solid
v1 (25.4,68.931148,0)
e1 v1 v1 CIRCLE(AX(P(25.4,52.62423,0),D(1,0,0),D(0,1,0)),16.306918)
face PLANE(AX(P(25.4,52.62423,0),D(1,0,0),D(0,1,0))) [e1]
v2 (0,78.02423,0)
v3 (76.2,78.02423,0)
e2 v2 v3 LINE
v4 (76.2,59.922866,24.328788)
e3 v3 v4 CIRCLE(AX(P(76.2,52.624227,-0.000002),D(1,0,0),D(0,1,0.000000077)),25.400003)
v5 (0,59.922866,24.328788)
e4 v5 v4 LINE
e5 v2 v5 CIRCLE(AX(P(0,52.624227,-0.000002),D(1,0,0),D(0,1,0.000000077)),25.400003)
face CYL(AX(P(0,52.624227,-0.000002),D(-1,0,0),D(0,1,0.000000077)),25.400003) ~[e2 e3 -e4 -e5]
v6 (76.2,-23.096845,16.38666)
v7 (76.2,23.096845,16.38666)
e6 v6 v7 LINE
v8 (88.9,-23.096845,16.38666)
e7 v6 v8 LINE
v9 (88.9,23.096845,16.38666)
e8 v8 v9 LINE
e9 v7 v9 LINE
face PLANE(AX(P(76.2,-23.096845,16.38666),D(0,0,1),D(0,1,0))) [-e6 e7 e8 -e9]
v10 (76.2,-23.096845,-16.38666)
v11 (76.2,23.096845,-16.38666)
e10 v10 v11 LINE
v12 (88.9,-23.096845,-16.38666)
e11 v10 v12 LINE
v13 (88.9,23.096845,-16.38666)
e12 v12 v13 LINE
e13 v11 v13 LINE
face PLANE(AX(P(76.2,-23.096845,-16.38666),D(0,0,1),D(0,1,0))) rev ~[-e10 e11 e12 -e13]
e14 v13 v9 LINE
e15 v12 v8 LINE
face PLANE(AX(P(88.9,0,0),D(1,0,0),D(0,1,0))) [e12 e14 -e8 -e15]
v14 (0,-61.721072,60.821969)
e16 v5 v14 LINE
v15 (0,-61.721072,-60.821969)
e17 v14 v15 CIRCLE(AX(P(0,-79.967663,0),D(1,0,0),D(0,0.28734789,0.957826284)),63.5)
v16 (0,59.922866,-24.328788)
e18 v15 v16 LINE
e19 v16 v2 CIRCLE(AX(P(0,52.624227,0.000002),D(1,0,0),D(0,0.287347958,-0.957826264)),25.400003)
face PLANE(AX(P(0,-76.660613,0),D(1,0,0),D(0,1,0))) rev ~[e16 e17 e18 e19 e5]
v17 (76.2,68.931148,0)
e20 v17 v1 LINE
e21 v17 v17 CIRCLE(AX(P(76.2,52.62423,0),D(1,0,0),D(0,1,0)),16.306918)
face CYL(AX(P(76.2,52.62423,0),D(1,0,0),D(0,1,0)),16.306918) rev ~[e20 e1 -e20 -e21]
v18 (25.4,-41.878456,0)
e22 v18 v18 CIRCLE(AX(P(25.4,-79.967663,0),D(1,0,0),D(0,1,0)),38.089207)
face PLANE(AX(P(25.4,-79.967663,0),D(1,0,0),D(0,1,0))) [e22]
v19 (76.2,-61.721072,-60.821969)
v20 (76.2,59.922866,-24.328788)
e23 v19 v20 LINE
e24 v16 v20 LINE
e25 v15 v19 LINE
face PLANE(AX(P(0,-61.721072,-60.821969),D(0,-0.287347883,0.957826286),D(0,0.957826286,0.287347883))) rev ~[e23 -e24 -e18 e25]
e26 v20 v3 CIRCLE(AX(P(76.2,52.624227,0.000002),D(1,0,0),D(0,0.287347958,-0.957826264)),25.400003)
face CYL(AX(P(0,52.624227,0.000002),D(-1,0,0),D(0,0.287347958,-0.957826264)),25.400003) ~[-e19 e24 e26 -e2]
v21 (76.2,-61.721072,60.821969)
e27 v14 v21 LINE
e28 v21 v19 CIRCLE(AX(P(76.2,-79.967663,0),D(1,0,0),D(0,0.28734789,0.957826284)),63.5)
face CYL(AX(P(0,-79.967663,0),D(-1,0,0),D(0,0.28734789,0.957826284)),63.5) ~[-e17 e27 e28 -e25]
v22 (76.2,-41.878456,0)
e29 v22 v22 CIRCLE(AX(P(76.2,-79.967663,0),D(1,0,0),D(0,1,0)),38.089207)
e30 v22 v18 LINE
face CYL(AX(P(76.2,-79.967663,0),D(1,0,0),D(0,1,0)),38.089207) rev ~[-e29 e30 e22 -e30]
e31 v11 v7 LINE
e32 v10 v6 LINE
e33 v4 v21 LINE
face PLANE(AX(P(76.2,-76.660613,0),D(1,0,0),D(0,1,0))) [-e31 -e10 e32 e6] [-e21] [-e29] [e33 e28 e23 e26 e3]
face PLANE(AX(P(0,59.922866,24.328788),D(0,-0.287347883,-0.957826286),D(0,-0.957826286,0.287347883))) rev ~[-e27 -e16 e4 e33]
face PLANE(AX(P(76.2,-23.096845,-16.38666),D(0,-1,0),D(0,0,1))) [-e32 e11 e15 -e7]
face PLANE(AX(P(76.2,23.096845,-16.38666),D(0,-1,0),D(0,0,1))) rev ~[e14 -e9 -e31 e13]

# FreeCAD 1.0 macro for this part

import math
import FreeCAD as App
import Part
import Sketcher
Q = App.Units.Quantity

doc = App.newDocument("Part")
body = doc.addObject("PartDesign::Body", "Body")

sketch1 = body.newObject("Sketcher::SketchObject", "Sketch")
sketch1.AttachmentSupport = (doc.getObject("YZ_Plane"), [""])
sketch1.MapMode = "FlatFace"
sketch1.addGeometry(Part.ArcOfCircle(Part.Circle(App.Vector(-80, 0, 0), App.Vector(0, 0, 1), 63), math.radians(73), math.radians(287)), False)
sketch1.addGeometry(Part.LineSegment(App.Vector(-62, -61, 0), App.Vector(60, -24, 0)), False)
sketch1.addGeometry(Part.ArcOfCircle(Part.Circle(App.Vector(53, 0, 0), App.Vector(0, 0, 1), 25), math.radians(-73), math.radians(0)), False)
sketch1.addGeometry(Part.ArcOfCircle(Part.Circle(App.Vector(53, 0, 0), App.Vector(0, 0, 1), 25), math.radians(0), math.radians(73)), False)
sketch1.addGeometry(Part.LineSegment(App.Vector(60, 24, 0), App.Vector(-62, 61, 0)), False)
sketch1.addConstraint(Sketcher.Constraint("Tangent", 0, 2, 1, 1))
sketch1.addConstraint(Sketcher.Constraint("Tangent", 1, 2, 2, 1))
sketch1.addConstraint(Sketcher.Constraint("Tangent", 2, 2, 3, 1))
sketch1.addConstraint(Sketcher.Constraint("Tangent", 3, 2, 4, 1))
sketch1.addConstraint(Sketcher.Constraint("Tangent", 4, 2, 0, 1))
sketch1.addConstraint(Sketcher.Constraint("Equal", 2, 3))
sketch1.addConstraint(Sketcher.Constraint("Symmetric", 1, 2, 3, 2, -1))
sketch1.addConstraint(Sketcher.Constraint("PointOnObject", 2, 2, -1))
sketch1.addConstraint(Sketcher.Constraint("Radius", 2, Q("1.0000001 in")))
sketch1.addConstraint(Sketcher.Constraint("Radius", 0, Q("2.5 in")))
sketch1.addConstraint(Sketcher.Constraint("Distance", 1, Q("5 in")))
sketch1.addConstraint(Sketcher.Constraint("DistanceX", 0, 2, -1, 1, 61.721072))
pad1 = body.newObject("PartDesign::Pad", "Pad")
pad1.Profile = sketch1
pad1.Length = Q("3 in")

sketch2 = body.newObject("Sketcher::SketchObject", "Sketch001")
sketch2.AttachmentSupport = (doc.getObject("YZ_Plane"), [""])
sketch2.MapMode = "FlatFace"
sketch2.AttachmentOffset = App.Placement(App.Vector(0, 0, 3 * 25.4), App.Rotation())
sketch2.addGeometry(Part.Circle(App.Vector(-80, 0, 0), App.Vector(0, 0, 1), 38), False)
sketch2.addGeometry(Part.Circle(App.Vector(53, 0, 0), App.Vector(0, 0, 1), 16), False)
sketch2.addConstraint(Sketcher.Constraint("PointOnObject", 0, 3, -1))
sketch2.addConstraint(Sketcher.Constraint("PointOnObject", 1, 3, -1))
sketch2.addConstraint(Sketcher.Constraint("Diameter", 0, 76.178414))
sketch2.addConstraint(Sketcher.Constraint("Diameter", 1, 32.613836))
sketch2.addConstraint(Sketcher.Constraint("DistanceX", -1, 1, 1, 3, 52.62423))
sketch2.addConstraint(Sketcher.Constraint("DistanceX", 0, 3, -1, 1, 79.967663))
pocket1 = body.newObject("PartDesign::Pocket", "Pocket")
pocket1.Profile = sketch2
pocket1.Length = Q("2 in")

sketch3 = body.newObject("Sketcher::SketchObject", "Sketch002")
sketch3.AttachmentSupport = (doc.getObject("YZ_Plane"), [""])
sketch3.MapMode = "FlatFace"
sketch3.AttachmentOffset = App.Placement(App.Vector(0, 0, 3 * 25.4), App.Rotation())
sketch3.addGeometry(Part.LineSegment(App.Vector(-23, 16, 0), App.Vector(-23, -16, 0)), False)
sketch3.addGeometry(Part.LineSegment(App.Vector(-23, -16, 0), App.Vector(23, -16, 0)), False)
sketch3.addGeometry(Part.LineSegment(App.Vector(23, -16, 0), App.Vector(23, 16, 0)), False)
sketch3.addGeometry(Part.LineSegment(App.Vector(23, 16, 0), App.Vector(-23, 16, 0)), False)
sketch3.addConstraint(Sketcher.Constraint("Coincident", 0, 2, 1, 1))
sketch3.addConstraint(Sketcher.Constraint("Coincident", 1, 2, 2, 1))
sketch3.addConstraint(Sketcher.Constraint("Coincident", 2, 2, 3, 1))
sketch3.addConstraint(Sketcher.Constraint("Coincident", 3, 2, 0, 1))
sketch3.addConstraint(Sketcher.Constraint("Vertical", 0))
sketch3.addConstraint(Sketcher.Constraint("Horizontal", 1))
sketch3.addConstraint(Sketcher.Constraint("Vertical", 2))
sketch3.addConstraint(Sketcher.Constraint("Horizontal", 3))
sketch3.addConstraint(Sketcher.Constraint("Symmetric", 0, 2, 2, 2, -1, 1))
sketch3.addConstraint(Sketcher.Constraint("DistanceX", 1, 1, 1, 2, 46.19369))
sketch3.addConstraint(Sketcher.Constraint("DistanceY", 0, 2, 0, 1, 32.77332))
pad2 = body.newObject("PartDesign::Pad", "Pad001")
pad2.Profile = sketch3
pad2.Length = Q("0.5 in")

doc.recompute()
